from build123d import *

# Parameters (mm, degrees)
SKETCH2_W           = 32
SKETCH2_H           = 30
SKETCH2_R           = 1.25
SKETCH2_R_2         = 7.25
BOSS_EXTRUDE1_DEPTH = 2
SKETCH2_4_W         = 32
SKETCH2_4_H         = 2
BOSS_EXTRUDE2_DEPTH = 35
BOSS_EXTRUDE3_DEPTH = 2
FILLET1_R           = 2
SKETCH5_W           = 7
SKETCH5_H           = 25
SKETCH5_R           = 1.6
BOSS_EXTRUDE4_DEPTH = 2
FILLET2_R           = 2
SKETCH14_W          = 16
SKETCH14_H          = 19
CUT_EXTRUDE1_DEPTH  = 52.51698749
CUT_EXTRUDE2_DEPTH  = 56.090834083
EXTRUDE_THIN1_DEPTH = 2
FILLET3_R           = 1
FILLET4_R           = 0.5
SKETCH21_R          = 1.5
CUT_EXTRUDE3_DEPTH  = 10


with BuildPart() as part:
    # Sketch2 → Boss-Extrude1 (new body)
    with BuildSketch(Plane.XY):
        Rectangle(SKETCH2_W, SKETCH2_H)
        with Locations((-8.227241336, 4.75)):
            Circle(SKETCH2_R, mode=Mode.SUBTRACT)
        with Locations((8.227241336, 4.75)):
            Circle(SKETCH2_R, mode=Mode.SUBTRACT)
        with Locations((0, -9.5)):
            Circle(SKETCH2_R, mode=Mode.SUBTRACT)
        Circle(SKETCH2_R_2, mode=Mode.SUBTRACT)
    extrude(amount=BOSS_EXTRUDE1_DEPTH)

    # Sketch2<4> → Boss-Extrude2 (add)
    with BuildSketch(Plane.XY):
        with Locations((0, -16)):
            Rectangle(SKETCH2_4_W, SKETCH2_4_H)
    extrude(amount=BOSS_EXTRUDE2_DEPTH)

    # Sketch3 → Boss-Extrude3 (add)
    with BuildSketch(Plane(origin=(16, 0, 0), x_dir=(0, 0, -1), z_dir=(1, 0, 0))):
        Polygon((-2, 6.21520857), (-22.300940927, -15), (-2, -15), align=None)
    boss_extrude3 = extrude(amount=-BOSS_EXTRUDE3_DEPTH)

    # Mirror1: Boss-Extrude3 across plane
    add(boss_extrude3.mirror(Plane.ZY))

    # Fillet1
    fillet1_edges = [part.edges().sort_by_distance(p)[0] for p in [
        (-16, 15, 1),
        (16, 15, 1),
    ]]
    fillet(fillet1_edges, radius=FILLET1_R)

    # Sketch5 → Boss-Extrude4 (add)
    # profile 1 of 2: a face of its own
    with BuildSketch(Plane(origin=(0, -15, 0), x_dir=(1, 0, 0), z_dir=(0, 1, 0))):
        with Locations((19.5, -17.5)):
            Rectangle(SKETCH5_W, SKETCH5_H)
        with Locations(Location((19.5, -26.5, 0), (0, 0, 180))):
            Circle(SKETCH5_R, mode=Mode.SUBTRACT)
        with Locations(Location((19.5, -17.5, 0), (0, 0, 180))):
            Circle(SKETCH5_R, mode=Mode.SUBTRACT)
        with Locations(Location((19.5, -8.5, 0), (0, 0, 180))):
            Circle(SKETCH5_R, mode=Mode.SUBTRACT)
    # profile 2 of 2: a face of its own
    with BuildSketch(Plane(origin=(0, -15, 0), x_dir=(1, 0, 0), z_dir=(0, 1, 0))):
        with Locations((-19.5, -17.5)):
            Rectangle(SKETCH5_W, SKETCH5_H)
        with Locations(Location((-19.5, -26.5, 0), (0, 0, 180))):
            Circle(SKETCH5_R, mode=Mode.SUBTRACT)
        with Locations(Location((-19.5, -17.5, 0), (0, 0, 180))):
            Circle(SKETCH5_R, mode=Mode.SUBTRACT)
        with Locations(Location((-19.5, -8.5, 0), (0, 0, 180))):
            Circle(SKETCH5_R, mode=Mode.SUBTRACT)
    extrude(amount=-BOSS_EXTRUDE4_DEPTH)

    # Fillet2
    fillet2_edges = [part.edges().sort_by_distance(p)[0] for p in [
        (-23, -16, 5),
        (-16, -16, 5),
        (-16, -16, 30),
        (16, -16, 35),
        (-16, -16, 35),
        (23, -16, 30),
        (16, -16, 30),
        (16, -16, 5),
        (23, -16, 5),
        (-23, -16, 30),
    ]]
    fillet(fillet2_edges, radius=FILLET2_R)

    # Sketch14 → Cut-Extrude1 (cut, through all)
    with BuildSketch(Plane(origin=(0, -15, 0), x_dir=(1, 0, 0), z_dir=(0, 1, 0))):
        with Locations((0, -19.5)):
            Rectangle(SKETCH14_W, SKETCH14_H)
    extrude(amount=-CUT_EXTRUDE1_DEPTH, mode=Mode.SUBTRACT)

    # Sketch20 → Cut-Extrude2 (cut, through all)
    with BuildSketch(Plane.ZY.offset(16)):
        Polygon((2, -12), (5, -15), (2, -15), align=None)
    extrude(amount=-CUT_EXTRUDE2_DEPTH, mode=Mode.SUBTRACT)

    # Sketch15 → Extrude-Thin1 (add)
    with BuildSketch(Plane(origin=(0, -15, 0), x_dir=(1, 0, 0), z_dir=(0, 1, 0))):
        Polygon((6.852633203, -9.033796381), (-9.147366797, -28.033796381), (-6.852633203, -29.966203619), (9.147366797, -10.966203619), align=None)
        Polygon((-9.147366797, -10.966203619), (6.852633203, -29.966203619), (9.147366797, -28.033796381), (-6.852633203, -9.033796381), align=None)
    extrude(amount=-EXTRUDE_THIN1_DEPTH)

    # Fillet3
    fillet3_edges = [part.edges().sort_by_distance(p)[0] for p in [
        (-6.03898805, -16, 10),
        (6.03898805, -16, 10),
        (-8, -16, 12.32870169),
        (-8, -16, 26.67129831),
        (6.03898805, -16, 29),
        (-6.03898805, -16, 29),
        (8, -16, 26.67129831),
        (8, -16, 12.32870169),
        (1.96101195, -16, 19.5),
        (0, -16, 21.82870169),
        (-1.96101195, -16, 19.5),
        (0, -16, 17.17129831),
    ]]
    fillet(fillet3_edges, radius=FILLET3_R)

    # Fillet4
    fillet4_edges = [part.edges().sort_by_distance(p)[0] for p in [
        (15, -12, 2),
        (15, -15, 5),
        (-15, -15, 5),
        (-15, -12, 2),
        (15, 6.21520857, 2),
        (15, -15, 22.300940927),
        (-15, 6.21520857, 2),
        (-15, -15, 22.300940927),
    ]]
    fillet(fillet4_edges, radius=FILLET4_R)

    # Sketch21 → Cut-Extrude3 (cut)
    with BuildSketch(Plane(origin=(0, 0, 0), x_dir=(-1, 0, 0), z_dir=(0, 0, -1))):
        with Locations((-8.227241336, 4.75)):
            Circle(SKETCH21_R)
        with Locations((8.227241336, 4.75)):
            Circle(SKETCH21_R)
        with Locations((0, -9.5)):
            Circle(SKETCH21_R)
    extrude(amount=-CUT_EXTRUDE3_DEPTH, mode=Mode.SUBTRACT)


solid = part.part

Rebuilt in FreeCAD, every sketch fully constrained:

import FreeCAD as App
import Part
import Sketcher
Q = App.Units.Quantity


def edges_at(feature, points):
    """Names of the edges that pass closest to the given points."""
    edges = feature.Shape.Edges
    near = lambda p: min(range(len(edges)), key=lambda i: edges[i].distToShape(Part.Vertex(*p))[0])
    return sorted({f"Edge{near(p) + 1}" for p in points})


def add_polygon(sketch, points):
    """Adds a closed chain of lines whose ends are joined by coincident constraints."""
    first, n = sketch.GeometryCount, len(points)
    for a, b in zip(points, points[1:] + points[:1]):
        sketch.addGeometry(Part.LineSegment(App.Vector(*a, 0), App.Vector(*b, 0)), False)
    for i in range(n):
        sketch.addConstraint(Sketcher.Constraint("Coincident", first + i, 2, first + (i + 1) % n, 1))

doc = App.newDocument("Part")
body = doc.addObject("PartDesign::Body", "Body")

# Sketch on XY plane
sketch1 = doc.addObject("Sketcher::SketchObject", "Sketch")
body.addObject(sketch1)
sketch1.AttachmentSupport = (doc.XY_Plane, [""])
sketch1.MapMode = "FlatFace"
add_polygon(sketch1, [(-16, 15), (-16, -15), (16, -15), (16, 15)])  # lines 0-3
sketch1.addGeometry(Part.Circle(App.Vector(0, -9.5, 0), App.Vector(0, 0, 1), 1.2), False)  # 4
sketch1.addGeometry(Part.Circle(App.Vector(-8.2, 4.8, 0), App.Vector(0, 0, 1), 1.2), False)  # 5
sketch1.addGeometry(Part.Circle(App.Vector(0, 0, 0), App.Vector(0, 0, 1), 7.2), False)  # 6
sketch1.addGeometry(Part.Circle(App.Vector(8.2, 4.8, 0), App.Vector(0, 0, 1), 1.2), False)  # 7
sketch1.addConstraint(Sketcher.Constraint("Vertical", 0))
sketch1.addConstraint(Sketcher.Constraint("Horizontal", 1))
sketch1.addConstraint(Sketcher.Constraint("Vertical", 2))
sketch1.addConstraint(Sketcher.Constraint("Horizontal", 3))
sketch1.addConstraint(Sketcher.Constraint("Coincident", 6, 3, -1, 1))
sketch1.addConstraint(Sketcher.Constraint("Equal", 4, 5))
sketch1.addConstraint(Sketcher.Constraint("Equal", 5, 7))
sketch1.addConstraint(Sketcher.Constraint("Symmetric", 0, 2, 2, 2, -1, 1))
sketch1.addConstraint(Sketcher.Constraint("Symmetric", 5, 3, 7, 3, -2))
sketch1.addConstraint(Sketcher.Constraint("PointOnObject", 4, 3, -2))
sketch1.addConstraint(Sketcher.Constraint("Diameter", 4, Q("2.5 mm")))
sketch1.addConstraint(Sketcher.Constraint("Diameter", 6, Q("14.5 mm")))
sketch1.addConstraint(Sketcher.Constraint("DistanceX", 1, 1, 1, 2, Q("32 mm")))
sketch1.addConstraint(Sketcher.Constraint("DistanceY", 0, 2, 0, 1, Q("30 mm")))
sketch1.addConstraint(Sketcher.Constraint("DistanceY", 4, 3, -1, 1, Q("9.5 mm")))
sketch1.addConstraint(Sketcher.Constraint("DistanceY", -1, 1, 5, 3, Q("4.75 mm")))
sketch1.addConstraint(Sketcher.Constraint("DistanceX", 5, 3, -1, 1, Q("8.227241 mm")))
pad1 = doc.addObject("PartDesign::Pad", "Pad")
body.addObject(pad1)
pad1.Profile = sketch1
pad1.Length = 2

# Sketch on XY plane
sketch2 = doc.addObject("Sketcher::SketchObject", "Sketch001")
body.addObject(sketch2)
sketch2.AttachmentSupport = (doc.XY_Plane, [""])
sketch2.MapMode = "FlatFace"
add_polygon(sketch2, [(-16, -15), (-16, -17), (16, -17), (16, -15)])  # lines 0-3
sketch2.addConstraint(Sketcher.Constraint("Vertical", 0))
sketch2.addConstraint(Sketcher.Constraint("Horizontal", 1))
sketch2.addConstraint(Sketcher.Constraint("Vertical", 2))
sketch2.addConstraint(Sketcher.Constraint("Horizontal", 3))
sketch2.addConstraint(Sketcher.Constraint("DistanceX", 1, 1, 1, 2, Q("32 mm")))
sketch2.addConstraint(Sketcher.Constraint("DistanceY", 0, 2, 0, 1, Q("2 mm")))
sketch2.addConstraint(Sketcher.Constraint("DistanceX", 0, 2, -1, 1, Q("16 mm")))
sketch2.addConstraint(Sketcher.Constraint("DistanceY", 0, 2, -1, 1, Q("17 mm")))
pad2 = doc.addObject("PartDesign::Pad", "Pad001")
body.addObject(pad2)
pad2.Profile = sketch2
pad2.Length = 35

# Sketch on YZ plane
sketch3 = doc.addObject("Sketcher::SketchObject", "Sketch002")
body.addObject(sketch3)
sketch3.AttachmentSupport = (doc.YZ_Plane, [""])
sketch3.MapMode = "FlatFace"
sketch3.AttachmentOffset = App.Placement(App.Vector(0, 0, 16), App.Rotation())
add_polygon(sketch3, [(6, 2), (-15, 22), (-15, 2)])  # lines 0-2
sketch3.addConstraint(Sketcher.Constraint("Vertical", 1))
sketch3.addConstraint(Sketcher.Constraint("Horizontal", 2))
sketch3.addConstraint(Sketcher.Constraint("DistanceX", 0, 2, -1, 1, Q("15 mm")))
sketch3.addConstraint(Sketcher.Constraint("DistanceY", -1, 1, 1, 2, Q("2 mm")))
sketch3.addConstraint(Sketcher.Constraint("DistanceX", 2, 1, 2, 2, Q("21.215209 mm")))
sketch3.addConstraint(Sketcher.Constraint("DistanceY", 1, 2, 1, 1, Q("20.300941 mm")))
pad3 = doc.addObject("PartDesign::Pad", "Pad002")
body.addObject(pad3)
pad3.Profile = sketch3
pad3.Length = 2
pad3.Reversed = True
doc.recompute()

mirrored = doc.addObject("PartDesign::Mirrored", "Mirrored")
body.addObject(mirrored)
mirrored.Originals = [pad3]
mirrored.MirrorPlane = (doc.YZ_Plane, [""])
body.Tip = mirrored
doc.recompute()

fillet = doc.addObject("PartDesign::Fillet", "Fillet")
body.addObject(fillet)
fillet.Base = (mirrored, edges_at(mirrored, [(-16, 15, 1), (16, 15, 1)]))
fillet.Radius = 2

# Sketch on XZ plane
sketch4 = doc.addObject("Sketcher::SketchObject", "Sketch003")
body.addObject(sketch4)
sketch4.AttachmentSupport = (doc.XZ_Plane, [""])
sketch4.MapMode = "FlatFace"
sketch4.AttachmentOffset = App.Placement(App.Vector(0, 0, 15), App.Rotation())
add_polygon(sketch4, [(16, 5), (16, 30), (23, 30), (23, 5)])  # lines 0-3
sketch4.addGeometry(Part.Circle(App.Vector(19.5, 26.5, 0), App.Vector(0, 0, 1), 1.6), False)  # 4
sketch4.addGeometry(Part.Circle(App.Vector(19.5, 17.5, 0), App.Vector(0, 0, 1), 1.6), False)  # 5
sketch4.addGeometry(Part.Circle(App.Vector(19.5, 8.5, 0), App.Vector(0, 0, 1), 1.6), False)  # 6
add_polygon(sketch4, [(-23, 5), (-23, 30), (-16, 30), (-16, 5)])  # lines 7-10
sketch4.addGeometry(Part.Circle(App.Vector(-19.5, 26.5, 0), App.Vector(0, 0, 1), 1.6), False)  # 11
sketch4.addGeometry(Part.Circle(App.Vector(-19.5, 17.5, 0), App.Vector(0, 0, 1), 1.6), False)  # 12
sketch4.addGeometry(Part.Circle(App.Vector(-19.5, 8.5, 0), App.Vector(0, 0, 1), 1.6), False)  # 13
sketch4.addConstraint(Sketcher.Constraint("Vertical", 0))
sketch4.addConstraint(Sketcher.Constraint("Horizontal", 1))
sketch4.addConstraint(Sketcher.Constraint("Vertical", 2))
sketch4.addConstraint(Sketcher.Constraint("Horizontal", 3))
sketch4.addConstraint(Sketcher.Constraint("Vertical", 7))
sketch4.addConstraint(Sketcher.Constraint("Horizontal", 8))
sketch4.addConstraint(Sketcher.Constraint("Vertical", 9))
sketch4.addConstraint(Sketcher.Constraint("Horizontal", 10))
sketch4.addConstraint(Sketcher.Constraint("Equal", 4, 5))
sketch4.addConstraint(Sketcher.Constraint("Equal", 5, 6))
sketch4.addConstraint(Sketcher.Constraint("Equal", 6, 11))
sketch4.addConstraint(Sketcher.Constraint("Equal", 11, 12))
sketch4.addConstraint(Sketcher.Constraint("Equal", 12, 13))
sketch4.addConstraint(Sketcher.Constraint("Symmetric", 4, 3, 11, 3, -2))
sketch4.addConstraint(Sketcher.Constraint("Symmetric", 5, 3, 12, 3, -2))
sketch4.addConstraint(Sketcher.Constraint("Symmetric", 6, 3, 13, 3, -2))
sketch4.addConstraint(Sketcher.Constraint("Symmetric", 1, 2, 7, 2, -2))
sketch4.addConstraint(Sketcher.Constraint("Symmetric", 3, 2, 9, 2, -2))
sketch4.addConstraint(Sketcher.Constraint("Vertical", 4, 3, 5, 3))
sketch4.addConstraint(Sketcher.Constraint("Vertical", 5, 3, 6, 3))
sketch4.addConstraint(Sketcher.Constraint("Diameter", 4, Q("3.2 mm")))
sketch4.addConstraint(Sketcher.Constraint("DistanceX", 1, 1, 1, 2, Q("7 mm")))
sketch4.addConstraint(Sketcher.Constraint("DistanceY", 0, 1, 0, 2, Q("25 mm")))
sketch4.addConstraint(Sketcher.Constraint("DistanceX", -1, 1, 0, 2, Q("16 mm")))
sketch4.addConstraint(Sketcher.Constraint("DistanceY", -1, 1, 0, 2, Q("30 mm")))
sketch4.addConstraint(Sketcher.Constraint("DistanceY", 5, 3, 4, 3, Q("9 mm")))
sketch4.addConstraint(Sketcher.Constraint("DistanceY", 6, 3, 5, 3, Q("9 mm")))
sketch4.addConstraint(Sketcher.Constraint("DistanceX", 11, 3, 4, 3, Q("39 mm")))
sketch4.addConstraint(Sketcher.Constraint("DistanceY", -1, 1, 4, 3, Q("26.5 mm")))
pad4 = doc.addObject("PartDesign::Pad", "Pad003")
body.addObject(pad4)
pad4.Profile = sketch4
pad4.Length = 2
doc.recompute()

fillet2 = doc.addObject("PartDesign::Fillet", "Fillet001")
body.addObject(fillet2)
fillet2.Base = (pad4, edges_at(pad4, [
    (-23, -16, 5),
    (-16, -16, 5),
    (-16, -16, 30),
    (16, -16, 35),
    (-16, -16, 35),
    (23, -16, 30),
    (16, -16, 30),
    (16, -16, 5),
    (23, -16, 5),
    (-23, -16, 30),
]))
fillet2.Radius = 2

# Sketch on XZ plane
sketch5 = doc.addObject("Sketcher::SketchObject", "Sketch004")
body.addObject(sketch5)
sketch5.AttachmentSupport = (doc.XZ_Plane, [""])
sketch5.MapMode = "FlatFace"
sketch5.AttachmentOffset = App.Placement(App.Vector(0, 0, 15), App.Rotation())
add_polygon(sketch5, [(-8, 10), (-8, 29), (8, 29), (8, 10)])  # lines 0-3
sketch5.addConstraint(Sketcher.Constraint("Vertical", 0))
sketch5.addConstraint(Sketcher.Constraint("Horizontal", 1))
sketch5.addConstraint(Sketcher.Constraint("Vertical", 2))
sketch5.addConstraint(Sketcher.Constraint("Horizontal", 3))
sketch5.addConstraint(Sketcher.Constraint("DistanceX", 1, 1, 1, 2, Q("16 mm")))
sketch5.addConstraint(Sketcher.Constraint("DistanceY", 0, 1, 0, 2, Q("19 mm")))
sketch5.addConstraint(Sketcher.Constraint("DistanceX", 0, 2, -1, 1, Q("8 mm")))
sketch5.addConstraint(Sketcher.Constraint("DistanceY", -1, 1, 0, 2, Q("29 mm")))
pocket1 = doc.addObject("PartDesign::Pocket", "Pocket")
body.addObject(pocket1)
pocket1.Profile = sketch5
pocket1.Type = "ThroughAll"
pocket1.Reversed = True

# Sketch on YZ plane
sketch6 = doc.addObject("Sketcher::SketchObject", "Sketch005")
body.addObject(sketch6)
sketch6.AttachmentSupport = (doc.YZ_Plane, [""])
sketch6.MapMode = "FlatFace"
sketch6.AttachmentOffset = App.Placement(App.Vector(0, 0, -16), App.Rotation())
add_polygon(sketch6, [(-15, 5), (-12, 2), (-15, 2)])  # lines 0-2
sketch6.addConstraint(Sketcher.Constraint("Horizontal", 1))
sketch6.addConstraint(Sketcher.Constraint("Vertical", 2))
sketch6.addConstraint(Sketcher.Constraint("Equal", 1, 2))
sketch6.addConstraint(Sketcher.Constraint("DistanceX", 1, 2, 1, 1, Q("3 mm")))
sketch6.addConstraint(Sketcher.Constraint("DistanceX", 0, 2, -1, 1, Q("12 mm")))
sketch6.addConstraint(Sketcher.Constraint("DistanceY", -1, 1, 0, 2, Q("2 mm")))
pocket2 = doc.addObject("PartDesign::Pocket", "Pocket001")
body.addObject(pocket2)
pocket2.Profile = sketch6
pocket2.Type = "ThroughAll"
pocket2.Reversed = True

# Sketch on XZ plane
sketch7 = doc.addObject("Sketcher::SketchObject", "Sketch006")
body.addObject(sketch7)
sketch7.AttachmentSupport = (doc.XZ_Plane, [""])
sketch7.MapMode = "FlatFace"
sketch7.AttachmentOffset = App.Placement(App.Vector(0, 0, 15), App.Rotation())
add_polygon(sketch7, [(9.1, 11), (6.9, 9), (0, 17.2), (-6.9, 9), (-9.1, 11), (-2, 19.5), (-9.1, 28), (-6.9, 30), (0, 21.8), (6.9, 30), (9.1, 28), (2, 19.5)])  # lines 0-11
sketch7.addConstraint(Sketcher.Constraint("Symmetric", 0, 2, 2, 2, -2))
sketch7.addConstraint(Sketcher.Constraint("Symmetric", 6, 2, 8, 2, -2))
sketch7.addConstraint(Sketcher.Constraint("Symmetric", 5, 2, 9, 2, -2))
sketch7.addConstraint(Sketcher.Constraint("Symmetric", 4, 2, 10, 2, -2))
sketch7.addConstraint(Sketcher.Constraint("Symmetric", 3, 2, 11, 2, -2))
sketch7.addConstraint(Sketcher.Constraint("PointOnObject", 1, 2, -2))
sketch7.addConstraint(Sketcher.Constraint("PointOnObject", 7, 2, -2))
sketch7.addConstraint(Sketcher.Constraint("Perpendicular", 0, 1))
sketch7.addConstraint(Sketcher.Constraint("Perpendicular", 3, 4))
sketch7.addConstraint(Sketcher.Constraint("Parallel", 1, 5))
sketch7.addConstraint(Sketcher.Constraint("Perpendicular", 5, 6))
sketch7.addConstraint(Sketcher.Constraint("Perpendicular", 6, 7))
sketch7.addConstraint(Sketcher.Constraint("Vertical", 3, 2, 5, 2))
sketch7.addConstraint(Sketcher.Constraint("Vertical", 2, 2, 6, 2))
sketch7.addConstraint(Sketcher.Constraint("Distance", 0, Q("3 mm")))
sketch7.addConstraint(Sketcher.Constraint("DistanceX", 3, 2, 0, 2, Q("16 mm")))
sketch7.addConstraint(Sketcher.Constraint("DistanceY", 2, 2, 5, 2, Q("19 mm")))
sketch7.addConstraint(Sketcher.Constraint("DistanceY", -1, 1, 4, 2, Q("19.5 mm")))
sketch7.addConstraint(Sketcher.Constraint("DistanceY", -1, 1, 1, 2, Q("17.171298 mm")))
pad5 = doc.addObject("PartDesign::Pad", "Pad004")
body.addObject(pad5)
pad5.Profile = sketch7
pad5.Length = 2
doc.recompute()

fillet3 = doc.addObject("PartDesign::Fillet", "Fillet002")
body.addObject(fillet3)
fillet3.Base = (pad5, edges_at(pad5, [
    (-6.039, -16, 10),
    (6.039, -16, 10),
    (-8, -16, 12.329),
    (-8, -16, 26.671),
    (6.039, -16, 29),
    (-6.039, -16, 29),
    (8, -16, 26.671),
    (8, -16, 12.329),
    (1.961, -16, 19.5),
    (0, -16, 21.829),
    (-1.961, -16, 19.5),
    (0, -16, 17.171),
]))
fillet3.Radius = 1
doc.recompute()

fillet4 = doc.addObject("PartDesign::Fillet", "Fillet003")
body.addObject(fillet4)
fillet4.Base = (fillet3, edges_at(fillet3, [
    (15, -12, 2),
    (15, -15, 5),
    (-15, -15, 5),
    (-15, -12, 2),
    (15, 6.215, 2),
    (15, -15, 22.301),
    (-15, 6.215, 2),
    (-15, -15, 22.301),
]))
fillet4.Radius = 0.5

# Sketch on XY plane
sketch8 = doc.addObject("Sketcher::SketchObject", "Sketch007")
body.addObject(sketch8)
sketch8.AttachmentSupport = (doc.XY_Plane, [""])
sketch8.MapMode = "FlatFace"
sketch8.addGeometry(Part.Circle(App.Vector(8.2, 4.8, 0), App.Vector(0, 0, 1), 1.5), False)
sketch8.addGeometry(Part.Circle(App.Vector(-8.2, 4.8, 0), App.Vector(0, 0, 1), 1.5), False)
sketch8.addGeometry(Part.Circle(App.Vector(0, -9.5, 0), App.Vector(0, 0, 1), 1.5), False)
sketch8.addConstraint(Sketcher.Constraint("Equal", 0, 1))
sketch8.addConstraint(Sketcher.Constraint("Equal", 1, 2))
sketch8.addConstraint(Sketcher.Constraint("Symmetric", 0, 3, 1, 3, -2))
sketch8.addConstraint(Sketcher.Constraint("PointOnObject", 2, 3, -2))
sketch8.addConstraint(Sketcher.Constraint("Diameter", 0, Q("3 mm")))
sketch8.addConstraint(Sketcher.Constraint("DistanceY", 2, 3, -1, 1, Q("9.5 mm")))
sketch8.addConstraint(Sketcher.Constraint("DistanceY", -1, 1, 0, 3, Q("4.75 mm")))
sketch8.addConstraint(Sketcher.Constraint("DistanceX", -1, 1, 0, 3, Q("8.227241 mm")))
pocket3 = doc.addObject("PartDesign::Pocket", "Pocket002")
body.addObject(pocket3)
pocket3.Profile = sketch8
pocket3.Length = 10
pocket3.Reversed = True

doc.recompute()
